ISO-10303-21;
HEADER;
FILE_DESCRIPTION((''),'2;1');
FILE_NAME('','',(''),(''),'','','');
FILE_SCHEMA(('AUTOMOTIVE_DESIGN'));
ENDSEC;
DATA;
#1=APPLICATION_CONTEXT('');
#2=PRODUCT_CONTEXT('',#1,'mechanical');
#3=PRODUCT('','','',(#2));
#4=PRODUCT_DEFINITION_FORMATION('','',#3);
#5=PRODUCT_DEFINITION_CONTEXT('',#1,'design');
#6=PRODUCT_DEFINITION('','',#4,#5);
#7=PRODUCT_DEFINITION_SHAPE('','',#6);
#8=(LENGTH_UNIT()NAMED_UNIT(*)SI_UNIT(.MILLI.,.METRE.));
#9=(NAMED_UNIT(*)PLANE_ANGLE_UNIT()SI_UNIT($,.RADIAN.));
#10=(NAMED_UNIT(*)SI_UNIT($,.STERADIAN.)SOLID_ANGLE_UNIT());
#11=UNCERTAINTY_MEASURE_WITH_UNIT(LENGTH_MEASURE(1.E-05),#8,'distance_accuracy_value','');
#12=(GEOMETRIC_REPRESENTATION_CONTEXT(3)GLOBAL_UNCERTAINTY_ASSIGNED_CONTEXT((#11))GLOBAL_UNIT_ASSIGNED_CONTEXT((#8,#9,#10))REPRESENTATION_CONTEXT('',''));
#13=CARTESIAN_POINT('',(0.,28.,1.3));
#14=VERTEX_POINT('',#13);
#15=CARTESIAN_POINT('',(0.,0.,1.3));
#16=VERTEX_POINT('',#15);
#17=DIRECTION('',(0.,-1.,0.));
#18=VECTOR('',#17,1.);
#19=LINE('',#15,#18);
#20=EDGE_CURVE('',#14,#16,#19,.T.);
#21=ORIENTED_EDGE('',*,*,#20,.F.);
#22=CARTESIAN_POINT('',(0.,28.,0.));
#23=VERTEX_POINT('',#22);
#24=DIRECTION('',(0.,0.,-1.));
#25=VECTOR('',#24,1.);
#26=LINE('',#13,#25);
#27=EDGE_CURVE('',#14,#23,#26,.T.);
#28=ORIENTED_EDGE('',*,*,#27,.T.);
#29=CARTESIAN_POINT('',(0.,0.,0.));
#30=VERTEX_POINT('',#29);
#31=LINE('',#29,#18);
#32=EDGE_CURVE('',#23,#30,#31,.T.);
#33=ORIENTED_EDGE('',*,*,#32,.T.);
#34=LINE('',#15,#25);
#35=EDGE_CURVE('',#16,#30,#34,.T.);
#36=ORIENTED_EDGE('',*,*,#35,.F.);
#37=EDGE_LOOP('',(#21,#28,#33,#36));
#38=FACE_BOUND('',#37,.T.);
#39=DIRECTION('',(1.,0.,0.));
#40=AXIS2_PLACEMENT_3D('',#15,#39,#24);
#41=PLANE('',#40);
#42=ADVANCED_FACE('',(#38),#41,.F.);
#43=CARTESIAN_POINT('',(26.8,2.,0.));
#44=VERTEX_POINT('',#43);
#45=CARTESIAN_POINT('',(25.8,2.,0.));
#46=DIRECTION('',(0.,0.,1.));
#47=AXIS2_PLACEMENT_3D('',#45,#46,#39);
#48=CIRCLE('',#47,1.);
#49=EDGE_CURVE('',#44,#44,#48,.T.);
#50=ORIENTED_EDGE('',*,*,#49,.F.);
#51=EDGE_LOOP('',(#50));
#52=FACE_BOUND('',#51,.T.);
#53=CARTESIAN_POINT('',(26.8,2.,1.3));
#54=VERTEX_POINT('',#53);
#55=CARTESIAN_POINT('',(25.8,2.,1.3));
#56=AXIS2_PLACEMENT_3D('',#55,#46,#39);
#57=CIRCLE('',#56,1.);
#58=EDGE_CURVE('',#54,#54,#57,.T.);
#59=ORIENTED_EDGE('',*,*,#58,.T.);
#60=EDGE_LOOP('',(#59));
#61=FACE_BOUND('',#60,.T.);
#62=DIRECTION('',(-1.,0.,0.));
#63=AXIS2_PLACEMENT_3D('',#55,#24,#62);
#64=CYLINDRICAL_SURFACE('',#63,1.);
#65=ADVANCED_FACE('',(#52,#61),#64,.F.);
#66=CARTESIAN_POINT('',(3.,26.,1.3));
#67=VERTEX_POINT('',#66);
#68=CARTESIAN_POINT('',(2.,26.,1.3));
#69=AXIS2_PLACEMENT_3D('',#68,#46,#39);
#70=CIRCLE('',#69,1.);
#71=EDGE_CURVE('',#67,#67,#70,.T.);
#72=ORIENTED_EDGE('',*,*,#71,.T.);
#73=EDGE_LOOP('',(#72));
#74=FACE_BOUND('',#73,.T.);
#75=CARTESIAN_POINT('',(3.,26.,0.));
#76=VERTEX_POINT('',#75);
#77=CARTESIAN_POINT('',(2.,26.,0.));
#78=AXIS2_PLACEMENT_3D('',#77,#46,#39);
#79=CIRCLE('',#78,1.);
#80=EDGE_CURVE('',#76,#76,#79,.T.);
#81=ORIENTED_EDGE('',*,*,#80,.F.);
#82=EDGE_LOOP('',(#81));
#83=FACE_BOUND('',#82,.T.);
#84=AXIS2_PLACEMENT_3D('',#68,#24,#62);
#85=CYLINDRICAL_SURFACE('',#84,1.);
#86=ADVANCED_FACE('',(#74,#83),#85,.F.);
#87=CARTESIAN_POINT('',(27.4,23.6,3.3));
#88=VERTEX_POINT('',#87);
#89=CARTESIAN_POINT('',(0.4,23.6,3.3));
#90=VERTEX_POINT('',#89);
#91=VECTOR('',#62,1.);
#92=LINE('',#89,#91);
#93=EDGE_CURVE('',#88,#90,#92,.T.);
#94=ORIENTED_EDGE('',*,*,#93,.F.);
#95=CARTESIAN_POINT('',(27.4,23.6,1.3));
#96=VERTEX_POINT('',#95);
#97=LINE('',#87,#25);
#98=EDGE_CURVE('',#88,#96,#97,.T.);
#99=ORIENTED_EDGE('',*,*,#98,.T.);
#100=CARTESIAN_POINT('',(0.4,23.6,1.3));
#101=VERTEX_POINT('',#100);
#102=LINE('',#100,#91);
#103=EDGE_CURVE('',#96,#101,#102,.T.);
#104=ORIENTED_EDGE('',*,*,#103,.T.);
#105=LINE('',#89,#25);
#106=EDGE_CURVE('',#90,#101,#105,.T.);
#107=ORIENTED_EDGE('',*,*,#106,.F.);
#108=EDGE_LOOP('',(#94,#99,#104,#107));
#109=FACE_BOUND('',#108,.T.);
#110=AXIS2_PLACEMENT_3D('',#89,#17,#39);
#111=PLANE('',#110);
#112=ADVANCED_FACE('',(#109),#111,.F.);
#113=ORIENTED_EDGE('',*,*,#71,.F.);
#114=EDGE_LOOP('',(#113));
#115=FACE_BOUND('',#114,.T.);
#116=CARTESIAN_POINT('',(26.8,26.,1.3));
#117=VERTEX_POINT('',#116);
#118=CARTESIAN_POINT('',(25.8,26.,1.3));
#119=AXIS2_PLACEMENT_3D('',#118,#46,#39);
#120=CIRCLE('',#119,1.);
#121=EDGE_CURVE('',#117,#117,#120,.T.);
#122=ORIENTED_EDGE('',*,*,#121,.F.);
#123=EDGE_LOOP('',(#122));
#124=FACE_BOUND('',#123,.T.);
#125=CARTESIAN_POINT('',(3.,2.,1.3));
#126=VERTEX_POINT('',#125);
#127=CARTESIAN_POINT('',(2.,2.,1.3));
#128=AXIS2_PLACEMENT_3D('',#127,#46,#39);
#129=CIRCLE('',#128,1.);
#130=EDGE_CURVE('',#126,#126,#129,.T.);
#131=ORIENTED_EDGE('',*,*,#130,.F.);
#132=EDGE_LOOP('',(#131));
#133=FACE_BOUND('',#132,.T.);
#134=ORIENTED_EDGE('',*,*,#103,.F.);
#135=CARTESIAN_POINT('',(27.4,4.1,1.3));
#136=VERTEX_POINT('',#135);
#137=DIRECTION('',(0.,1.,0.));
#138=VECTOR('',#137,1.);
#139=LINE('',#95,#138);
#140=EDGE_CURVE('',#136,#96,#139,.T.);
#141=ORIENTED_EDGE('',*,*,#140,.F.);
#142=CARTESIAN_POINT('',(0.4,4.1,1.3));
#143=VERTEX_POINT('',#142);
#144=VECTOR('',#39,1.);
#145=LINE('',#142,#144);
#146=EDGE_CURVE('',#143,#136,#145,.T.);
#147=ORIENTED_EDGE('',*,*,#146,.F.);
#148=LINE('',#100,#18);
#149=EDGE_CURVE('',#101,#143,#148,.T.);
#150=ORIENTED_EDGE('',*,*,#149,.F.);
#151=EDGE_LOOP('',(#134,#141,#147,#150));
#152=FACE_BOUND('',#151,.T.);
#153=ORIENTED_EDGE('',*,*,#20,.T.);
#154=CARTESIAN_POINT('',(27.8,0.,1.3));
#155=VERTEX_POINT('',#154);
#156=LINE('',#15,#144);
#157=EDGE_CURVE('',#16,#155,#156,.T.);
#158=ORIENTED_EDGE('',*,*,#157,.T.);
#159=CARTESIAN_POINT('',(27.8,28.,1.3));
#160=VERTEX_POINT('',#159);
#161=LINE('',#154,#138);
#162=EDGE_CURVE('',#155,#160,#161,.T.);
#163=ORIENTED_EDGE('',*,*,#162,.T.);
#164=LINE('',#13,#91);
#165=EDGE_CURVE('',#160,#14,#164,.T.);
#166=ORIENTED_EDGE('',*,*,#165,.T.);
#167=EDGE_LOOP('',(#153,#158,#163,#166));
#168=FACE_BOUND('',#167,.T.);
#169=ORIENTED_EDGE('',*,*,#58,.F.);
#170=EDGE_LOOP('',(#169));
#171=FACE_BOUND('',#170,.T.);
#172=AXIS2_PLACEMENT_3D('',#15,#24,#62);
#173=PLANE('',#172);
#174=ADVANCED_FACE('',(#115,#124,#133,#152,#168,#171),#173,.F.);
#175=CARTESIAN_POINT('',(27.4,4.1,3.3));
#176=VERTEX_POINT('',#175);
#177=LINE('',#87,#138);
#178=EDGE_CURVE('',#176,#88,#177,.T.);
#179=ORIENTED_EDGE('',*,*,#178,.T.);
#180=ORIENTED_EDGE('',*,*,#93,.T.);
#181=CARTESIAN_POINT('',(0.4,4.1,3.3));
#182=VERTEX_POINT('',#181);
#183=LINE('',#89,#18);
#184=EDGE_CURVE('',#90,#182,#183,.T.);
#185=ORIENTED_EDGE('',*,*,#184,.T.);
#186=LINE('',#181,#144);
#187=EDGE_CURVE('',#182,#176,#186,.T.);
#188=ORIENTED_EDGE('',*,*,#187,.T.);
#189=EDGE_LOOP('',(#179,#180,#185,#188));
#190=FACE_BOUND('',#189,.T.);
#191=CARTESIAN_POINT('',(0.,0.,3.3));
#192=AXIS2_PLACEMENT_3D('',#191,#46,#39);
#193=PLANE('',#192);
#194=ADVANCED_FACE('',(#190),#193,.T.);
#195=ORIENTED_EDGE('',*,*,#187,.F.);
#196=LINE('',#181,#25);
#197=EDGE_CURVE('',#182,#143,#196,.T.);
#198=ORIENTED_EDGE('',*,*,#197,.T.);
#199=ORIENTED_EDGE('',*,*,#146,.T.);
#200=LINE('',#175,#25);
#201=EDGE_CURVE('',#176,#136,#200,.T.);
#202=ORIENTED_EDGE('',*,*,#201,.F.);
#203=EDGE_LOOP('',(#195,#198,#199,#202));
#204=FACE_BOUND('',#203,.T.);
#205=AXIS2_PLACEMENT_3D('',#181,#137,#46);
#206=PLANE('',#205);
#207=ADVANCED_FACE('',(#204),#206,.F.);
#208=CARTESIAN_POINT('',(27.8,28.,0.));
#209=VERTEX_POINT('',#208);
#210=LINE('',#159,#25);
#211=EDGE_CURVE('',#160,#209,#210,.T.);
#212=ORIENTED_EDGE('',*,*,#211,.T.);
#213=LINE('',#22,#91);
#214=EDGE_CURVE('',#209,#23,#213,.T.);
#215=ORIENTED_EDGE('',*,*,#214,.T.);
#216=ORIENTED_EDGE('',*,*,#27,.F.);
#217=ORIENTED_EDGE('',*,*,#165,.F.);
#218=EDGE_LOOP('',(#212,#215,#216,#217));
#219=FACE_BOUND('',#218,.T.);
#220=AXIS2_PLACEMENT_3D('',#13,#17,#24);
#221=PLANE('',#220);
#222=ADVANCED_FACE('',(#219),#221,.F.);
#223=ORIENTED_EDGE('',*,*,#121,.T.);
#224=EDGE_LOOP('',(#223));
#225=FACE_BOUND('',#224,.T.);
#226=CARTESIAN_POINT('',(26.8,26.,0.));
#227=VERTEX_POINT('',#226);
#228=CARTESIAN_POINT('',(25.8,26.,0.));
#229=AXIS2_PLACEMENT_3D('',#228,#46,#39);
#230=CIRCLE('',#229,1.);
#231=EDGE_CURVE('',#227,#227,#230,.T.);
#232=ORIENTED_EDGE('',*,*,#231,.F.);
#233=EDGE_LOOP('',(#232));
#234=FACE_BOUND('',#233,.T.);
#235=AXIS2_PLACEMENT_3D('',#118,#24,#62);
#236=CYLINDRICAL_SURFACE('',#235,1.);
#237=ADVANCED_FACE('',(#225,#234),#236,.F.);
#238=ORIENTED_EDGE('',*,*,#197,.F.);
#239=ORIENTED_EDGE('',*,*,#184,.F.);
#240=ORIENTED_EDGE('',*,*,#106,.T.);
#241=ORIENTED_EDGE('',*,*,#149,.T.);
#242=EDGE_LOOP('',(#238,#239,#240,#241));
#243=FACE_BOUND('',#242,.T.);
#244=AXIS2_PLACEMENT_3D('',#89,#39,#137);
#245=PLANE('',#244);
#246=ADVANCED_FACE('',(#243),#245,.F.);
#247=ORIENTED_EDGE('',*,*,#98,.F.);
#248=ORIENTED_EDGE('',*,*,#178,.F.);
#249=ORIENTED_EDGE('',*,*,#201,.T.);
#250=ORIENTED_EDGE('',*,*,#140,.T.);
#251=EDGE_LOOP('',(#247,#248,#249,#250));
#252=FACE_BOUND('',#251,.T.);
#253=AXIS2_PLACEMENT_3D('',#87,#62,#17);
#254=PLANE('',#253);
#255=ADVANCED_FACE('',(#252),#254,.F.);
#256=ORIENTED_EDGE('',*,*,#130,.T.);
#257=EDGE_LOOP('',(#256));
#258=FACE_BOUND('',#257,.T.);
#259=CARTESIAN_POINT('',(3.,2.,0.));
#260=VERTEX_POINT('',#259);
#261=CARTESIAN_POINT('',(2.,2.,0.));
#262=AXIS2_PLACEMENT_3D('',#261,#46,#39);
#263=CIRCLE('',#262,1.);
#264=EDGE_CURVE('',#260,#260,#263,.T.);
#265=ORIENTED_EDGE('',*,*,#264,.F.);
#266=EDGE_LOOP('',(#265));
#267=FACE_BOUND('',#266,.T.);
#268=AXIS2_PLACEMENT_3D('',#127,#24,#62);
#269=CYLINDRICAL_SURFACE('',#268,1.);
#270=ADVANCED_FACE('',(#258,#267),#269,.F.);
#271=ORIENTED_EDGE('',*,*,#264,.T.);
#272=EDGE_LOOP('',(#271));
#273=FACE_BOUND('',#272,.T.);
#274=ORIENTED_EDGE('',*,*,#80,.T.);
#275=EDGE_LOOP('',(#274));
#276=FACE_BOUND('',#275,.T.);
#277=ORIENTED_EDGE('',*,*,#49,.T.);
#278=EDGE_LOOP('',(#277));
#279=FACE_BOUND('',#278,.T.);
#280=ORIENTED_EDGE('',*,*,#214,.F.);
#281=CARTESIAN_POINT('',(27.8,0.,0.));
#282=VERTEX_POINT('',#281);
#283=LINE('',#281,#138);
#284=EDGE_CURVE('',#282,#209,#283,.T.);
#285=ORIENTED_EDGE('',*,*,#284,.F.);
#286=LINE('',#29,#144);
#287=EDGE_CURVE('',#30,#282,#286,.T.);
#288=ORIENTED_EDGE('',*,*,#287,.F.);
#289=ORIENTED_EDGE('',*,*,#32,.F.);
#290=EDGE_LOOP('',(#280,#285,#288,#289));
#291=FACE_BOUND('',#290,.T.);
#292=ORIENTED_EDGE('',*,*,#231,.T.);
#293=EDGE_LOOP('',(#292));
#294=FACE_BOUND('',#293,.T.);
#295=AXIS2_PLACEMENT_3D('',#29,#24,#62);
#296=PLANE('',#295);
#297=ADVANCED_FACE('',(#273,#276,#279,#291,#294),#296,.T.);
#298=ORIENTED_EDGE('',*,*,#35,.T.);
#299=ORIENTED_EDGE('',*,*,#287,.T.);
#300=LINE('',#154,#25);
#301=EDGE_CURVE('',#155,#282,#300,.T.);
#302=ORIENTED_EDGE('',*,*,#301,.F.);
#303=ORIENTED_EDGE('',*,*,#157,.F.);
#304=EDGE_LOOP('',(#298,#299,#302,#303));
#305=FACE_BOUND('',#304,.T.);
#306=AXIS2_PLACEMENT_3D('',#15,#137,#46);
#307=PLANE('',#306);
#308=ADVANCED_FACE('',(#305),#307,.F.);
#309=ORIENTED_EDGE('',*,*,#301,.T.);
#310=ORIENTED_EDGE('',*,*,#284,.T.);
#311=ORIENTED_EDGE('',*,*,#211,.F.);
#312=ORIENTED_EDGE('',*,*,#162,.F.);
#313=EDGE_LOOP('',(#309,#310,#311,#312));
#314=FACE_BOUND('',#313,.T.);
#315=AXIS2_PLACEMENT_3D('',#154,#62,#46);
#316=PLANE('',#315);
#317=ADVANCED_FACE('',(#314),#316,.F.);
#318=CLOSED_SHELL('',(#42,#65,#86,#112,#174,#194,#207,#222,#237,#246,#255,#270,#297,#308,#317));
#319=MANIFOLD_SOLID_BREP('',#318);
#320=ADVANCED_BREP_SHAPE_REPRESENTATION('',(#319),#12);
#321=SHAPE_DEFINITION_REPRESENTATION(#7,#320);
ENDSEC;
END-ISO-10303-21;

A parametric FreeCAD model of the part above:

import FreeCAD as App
import Part
import Sketcher

doc = App.newDocument("Part")
body = doc.addObject("PartDesign::Body", "Body")

# Sketch on XY plane
sketch1 = doc.addObject("Sketcher::SketchObject", "Sketch")
body.addObject(sketch1)
sketch1.AttachmentSupport = (doc.XY_Plane, [""])
sketch1.MapMode = "FlatFace"
sketch1.addGeometry([
    Part.LineSegment(App.Vector(0, 28, 0), App.Vector(0, 0, 0)),  # 0
    Part.LineSegment(App.Vector(0, 0, 0), App.Vector(27.8, 0, 0)),  # 1
    Part.LineSegment(App.Vector(27.8, 0, 0), App.Vector(27.8, 28, 0)),  # 2
    Part.LineSegment(App.Vector(27.8, 28, 0), App.Vector(0, 28, 0)),  # 3
    Part.Circle(App.Vector(2, 2, 0), App.Vector(0, 0, 1), 1),  # 4
    Part.Circle(App.Vector(25.8, 2, 0), App.Vector(0, 0, 1), 1),  # 5
    Part.Circle(App.Vector(2, 26, 0), App.Vector(0, 0, 1), 1),  # 6
    Part.Circle(App.Vector(25.8, 26, 0), App.Vector(0, 0, 1), 1),  # 7
], False)
sketch1.addConstraint([
    Sketcher.Constraint("Coincident", 0, 2, 1, 1),
    Sketcher.Constraint("Coincident", 1, 2, 2, 1),
    Sketcher.Constraint("Coincident", 2, 2, 3, 1),
    Sketcher.Constraint("Coincident", 3, 2, 0, 1),
    Sketcher.Constraint("Vertical", 0),
    Sketcher.Constraint("Horizontal", 1),
    Sketcher.Constraint("Vertical", 2),
    Sketcher.Constraint("Horizontal", 3),
    Sketcher.Constraint("Coincident", 0, 2, -1, 1),
    Sketcher.Constraint("Equal", 4, 5),
    Sketcher.Constraint("Equal", 5, 6),
    Sketcher.Constraint("Equal", 6, 7),
    Sketcher.Constraint("Horizontal", 4, 3, 5, 3),
    Sketcher.Constraint("Horizontal", 6, 3, 7, 3),
    Sketcher.Constraint("Vertical", 4, 3, 6, 3),
    Sketcher.Constraint("Vertical", 5, 3, 7, 3),
    Sketcher.Constraint("Diameter", 4, 2.0),
    Sketcher.Constraint("DistanceY", 0, 2, 0, 1, 28.0),
    Sketcher.Constraint("DistanceX", 1, 1, 1, 2, 27.8),
    Sketcher.Constraint("DistanceX", -1, 1, 4, 3, 2.0),
    Sketcher.Constraint("DistanceY", -1, 1, 4, 3, 2.0),
    Sketcher.Constraint("DistanceY", -1, 1, 6, 3, 26.0),
    Sketcher.Constraint("DistanceX", 5, 3, 1, 2, 2.0),
])
pad1 = doc.addObject("PartDesign::Pad", "Pad")
body.addObject(pad1)
pad1.Profile = sketch1
pad1.Length = 1.3

# Sketch on XY plane
sketch2 = doc.addObject("Sketcher::SketchObject", "Sketch001")
body.addObject(sketch2)
sketch2.AttachmentSupport = (doc.XY_Plane, [""])
sketch2.MapMode = "FlatFace"
sketch2.AttachmentOffset = App.Placement(App.Vector(0, 0, 1.3), App.Rotation())
sketch2.addGeometry([
    Part.LineSegment(App.Vector(0, 24, 0), App.Vector(0, 4, 0)),
    Part.LineSegment(App.Vector(0, 4, 0), App.Vector(27, 4, 0)),
    Part.LineSegment(App.Vector(27, 4, 0), App.Vector(27, 24, 0)),
    Part.LineSegment(App.Vector(27, 24, 0), App.Vector(0, 24, 0)),
], False)
sketch2.addConstraint([
    Sketcher.Constraint("Coincident", 0, 2, 1, 1),
    Sketcher.Constraint("Coincident", 1, 2, 2, 1),
    Sketcher.Constraint("Coincident", 2, 2, 3, 1),
    Sketcher.Constraint("Coincident", 3, 2, 0, 1),
    Sketcher.Constraint("Vertical", 0),
    Sketcher.Constraint("Horizontal", 1),
    Sketcher.Constraint("Vertical", 2),
    Sketcher.Constraint("Horizontal", 3),
    Sketcher.Constraint("DistanceX", 1, 1, 1, 2, 27.0),
    Sketcher.Constraint("DistanceY", 0, 2, 0, 1, 19.5),
    Sketcher.Constraint("DistanceX", -1, 1, 0, 2, 0.4),
    Sketcher.Constraint("DistanceY", -1, 1, 0, 2, 4.1),
])
pad2 = doc.addObject("PartDesign::Pad", "Pad001")
body.addObject(pad2)
pad2.Profile = sketch2
pad2.Length = 2

doc.recompute()
